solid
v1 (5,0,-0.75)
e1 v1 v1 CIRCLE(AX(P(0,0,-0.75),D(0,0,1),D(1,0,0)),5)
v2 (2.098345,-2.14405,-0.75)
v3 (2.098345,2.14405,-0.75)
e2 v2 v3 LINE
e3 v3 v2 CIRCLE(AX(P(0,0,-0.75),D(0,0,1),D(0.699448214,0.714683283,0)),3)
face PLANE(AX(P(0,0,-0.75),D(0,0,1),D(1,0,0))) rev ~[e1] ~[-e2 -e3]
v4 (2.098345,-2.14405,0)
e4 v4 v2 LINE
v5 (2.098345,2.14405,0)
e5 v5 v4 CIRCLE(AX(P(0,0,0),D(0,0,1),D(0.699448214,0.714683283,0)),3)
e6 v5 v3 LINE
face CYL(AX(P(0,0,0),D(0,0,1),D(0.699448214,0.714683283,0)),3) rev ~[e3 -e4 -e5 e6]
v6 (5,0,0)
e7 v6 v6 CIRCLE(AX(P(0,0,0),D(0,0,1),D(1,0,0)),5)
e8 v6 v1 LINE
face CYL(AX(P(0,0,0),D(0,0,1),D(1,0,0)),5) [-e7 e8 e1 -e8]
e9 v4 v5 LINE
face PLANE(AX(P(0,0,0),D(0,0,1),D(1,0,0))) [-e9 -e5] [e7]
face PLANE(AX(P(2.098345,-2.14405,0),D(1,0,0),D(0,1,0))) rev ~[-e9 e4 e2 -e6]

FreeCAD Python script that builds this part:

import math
import FreeCAD as App
import Part
import Sketcher

V = App.Vector

doc = App.newDocument("Part")
body = doc.addObject("PartDesign::Body", "Body")

# Sketch on XY plane
sketch1 = doc.addObject("Sketcher::SketchObject", "Sketch")
body.addObject(sketch1)
sketch1.AttachmentSupport = (doc.XY_Plane, [""])
sketch1.MapMode = "FlatFace"
sketch1.addGeometry(Part.Circle(V(0, 0, 0), V(0, 0, 1), 5), False)
sketch1.addConstraint([
    Sketcher.Constraint("Coincident", 0, 3, -1, 1),
    Sketcher.Constraint("Diameter", 0, 10.0),
])
pad1 = doc.addObject("PartDesign::Pad", "Pad")
body.addObject(pad1)
pad1.Profile = sketch1
pad1.Length = 0.75
pad1.Reversed = True

# Sketch on XY plane
sketch2 = doc.addObject("Sketcher::SketchObject", "Sketch001")
body.addObject(sketch2)
sketch2.AttachmentSupport = (doc.XY_Plane, [""])
sketch2.MapMode = "FlatFace"
sketch2.addGeometry([
    Part.LineSegment(V(2.1, -2.1, 0), V(2.1, 2.1, 0)),
    Part.ArcOfCircle(Part.Circle(V(0, 0, 0), V(0, 0, 1), 3), math.radians(46), math.radians(314)),
], False)
sketch2.addConstraint([
    Sketcher.Constraint("Coincident", 0, 1, 1, 2),
    Sketcher.Constraint("Coincident", 1, 1, 0, 2),
    Sketcher.Constraint("Vertical", 0),
    Sketcher.Constraint("Coincident", 1, 3, -1, 1),
    Sketcher.Constraint("Radius", 1, 3.0),
    Sketcher.Constraint("DistanceY", 0, 1, 0, 2, 4.2881),
])
pocket1 = doc.addObject("PartDesign::Pocket", "Pocket")
body.addObject(pocket1)
pocket1.Profile = sketch2
pocket1.Type = "ThroughAll"

doc.recompute()
